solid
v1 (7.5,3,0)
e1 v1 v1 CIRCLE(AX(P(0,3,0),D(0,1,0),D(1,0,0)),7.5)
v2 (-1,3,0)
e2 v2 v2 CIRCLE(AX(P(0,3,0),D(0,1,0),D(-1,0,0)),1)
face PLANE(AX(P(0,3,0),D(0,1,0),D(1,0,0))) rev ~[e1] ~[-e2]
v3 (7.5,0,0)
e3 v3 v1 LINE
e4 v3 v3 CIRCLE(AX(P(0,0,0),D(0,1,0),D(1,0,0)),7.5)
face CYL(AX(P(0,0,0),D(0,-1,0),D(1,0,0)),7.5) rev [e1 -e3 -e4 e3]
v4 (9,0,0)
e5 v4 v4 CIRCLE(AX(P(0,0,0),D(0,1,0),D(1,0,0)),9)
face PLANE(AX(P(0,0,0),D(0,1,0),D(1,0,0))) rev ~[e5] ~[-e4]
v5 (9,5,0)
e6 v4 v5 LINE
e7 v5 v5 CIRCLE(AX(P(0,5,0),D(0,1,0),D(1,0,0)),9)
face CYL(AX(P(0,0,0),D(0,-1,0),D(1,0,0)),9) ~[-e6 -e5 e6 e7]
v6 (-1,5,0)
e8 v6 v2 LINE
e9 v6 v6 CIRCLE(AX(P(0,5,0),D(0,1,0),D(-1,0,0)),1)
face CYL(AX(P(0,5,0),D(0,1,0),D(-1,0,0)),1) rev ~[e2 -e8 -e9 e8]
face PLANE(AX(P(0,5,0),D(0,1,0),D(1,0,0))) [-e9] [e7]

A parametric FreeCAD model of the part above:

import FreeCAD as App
import Part
import Sketcher

V = App.Vector

doc = App.newDocument("Part")
body = doc.addObject("PartDesign::Body", "Body")

# Sketch on XZ plane
sketch1 = doc.addObject("Sketcher::SketchObject", "Sketch")
body.addObject(sketch1)
sketch1.AttachmentSupport = (doc.XZ_Plane, [""])
sketch1.MapMode = "FlatFace"
sketch1.addGeometry(Part.Circle(V(0, 0, 0), V(0, 0, 1), 9), False)
sketch1.addConstraint([
    Sketcher.Constraint("Coincident", 0, 3, -1, 1),
    Sketcher.Constraint("Diameter", 0, 18.0),
])
pad1 = doc.addObject("PartDesign::Pad", "Pad")
body.addObject(pad1)
pad1.Profile = sketch1
pad1.Length = 5
pad1.Reversed = True

# Sketch on XZ plane
sketch2 = doc.addObject("Sketcher::SketchObject", "Sketch001")
body.addObject(sketch2)
sketch2.AttachmentSupport = (doc.XZ_Plane, [""])
sketch2.MapMode = "FlatFace"
sketch2.addGeometry(Part.Circle(V(0, 0, 0), V(0, 0, 1), 8), False)
sketch2.addConstraint([
    Sketcher.Constraint("Coincident", 0, 3, -1, 1),
    Sketcher.Constraint("Diameter", 0, 15.0),
])
pocket1 = doc.addObject("PartDesign::Pocket", "Pocket")
body.addObject(pocket1)
pocket1.Profile = sketch2
pocket1.Length = 3

# Sketch on XZ plane
sketch3 = doc.addObject("Sketcher::SketchObject", "Sketch002")
body.addObject(sketch3)
sketch3.AttachmentSupport = (doc.XZ_Plane, [""])
sketch3.MapMode = "FlatFace"
sketch3.AttachmentOffset = App.Placement(V(0, 0, -5), App.Rotation())
sketch3.addGeometry(Part.Circle(V(0, 0, 0), V(0, 0, 1), 1), False)
sketch3.addConstraint([
    Sketcher.Constraint("Coincident", 0, 3, -1, 1),
    Sketcher.Constraint("Diameter", 0, 2.0),
])
pocket2 = doc.addObject("PartDesign::Pocket", "Pocket001")
body.addObject(pocket2)
pocket2.Profile = sketch3
pocket2.Length = 3
pocket2.Reversed = True

doc.recompute()
